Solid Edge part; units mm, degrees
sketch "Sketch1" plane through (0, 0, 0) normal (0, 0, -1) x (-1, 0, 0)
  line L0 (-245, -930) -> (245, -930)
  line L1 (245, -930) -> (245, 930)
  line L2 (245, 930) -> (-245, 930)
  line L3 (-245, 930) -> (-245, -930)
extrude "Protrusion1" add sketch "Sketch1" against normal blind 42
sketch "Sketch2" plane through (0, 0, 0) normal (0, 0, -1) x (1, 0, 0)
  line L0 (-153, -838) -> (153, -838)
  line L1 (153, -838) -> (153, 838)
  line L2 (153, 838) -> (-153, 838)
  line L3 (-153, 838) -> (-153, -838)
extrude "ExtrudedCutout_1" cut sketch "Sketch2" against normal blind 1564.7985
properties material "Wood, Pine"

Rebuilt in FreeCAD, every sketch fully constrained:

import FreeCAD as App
import Part
import Sketcher

V = App.Vector
Q = App.Units.Quantity


def add_polygon(sketch, points):
    """Adds a closed chain of lines whose ends are joined by coincident constraints."""
    first, n = sketch.GeometryCount, len(points)
    for a, b in zip(points, points[1:] + points[:1]):
        sketch.addGeometry(Part.LineSegment(App.Vector(*a, 0), App.Vector(*b, 0)), False)
    for i in range(n):
        sketch.addConstraint(Sketcher.Constraint("Coincident", first + i, 2, first + (i + 1) % n, 1))

doc = App.newDocument("Part")
body = doc.addObject("PartDesign::Body", "Body")

sketch1 = body.newObject("Sketcher::SketchObject", "Sketch")
sketch1.AttachmentSupport = (doc.getObject("XY_Plane"), [""])
sketch1.MapMode = "FlatFace"
add_polygon(sketch1, [(245, 930), (245, -930), (-245, -930), (-245, 930)])
sketch1.addConstraint(Sketcher.Constraint("Vertical", 0))
sketch1.addConstraint(Sketcher.Constraint("Horizontal", 1))
sketch1.addConstraint(Sketcher.Constraint("Vertical", 2))
sketch1.addConstraint(Sketcher.Constraint("Horizontal", 3))
sketch1.addConstraint(Sketcher.Constraint("Symmetric", 0, 2, 2, 2, -1, 1))
sketch1.addConstraint(Sketcher.Constraint("DistanceX", 1, 2, 1, 1, Q("490 mm")))
sketch1.addConstraint(Sketcher.Constraint("DistanceY", 0, 2, 0, 1, Q("1860 mm")))
pad1 = body.newObject("PartDesign::Pad", "Pad")
pad1.Profile = sketch1
pad1.Length = 42

sketch2 = body.newObject("Sketcher::SketchObject", "Sketch001")
sketch2.AttachmentSupport = (doc.getObject("XY_Plane"), [""])
sketch2.MapMode = "FlatFace"
add_polygon(sketch2, [(-153, -838), (-153, 838), (153, 838), (153, -838)])
sketch2.addConstraint(Sketcher.Constraint("Vertical", 0))
sketch2.addConstraint(Sketcher.Constraint("Horizontal", 1))
sketch2.addConstraint(Sketcher.Constraint("Vertical", 2))
sketch2.addConstraint(Sketcher.Constraint("Horizontal", 3))
sketch2.addConstraint(Sketcher.Constraint("Symmetric", 0, 2, 2, 2, -1, 1))
sketch2.addConstraint(Sketcher.Constraint("DistanceX", 1, 1, 1, 2, Q("306 mm")))
sketch2.addConstraint(Sketcher.Constraint("DistanceY", 0, 1, 0, 2, Q("1676 mm")))
pocket1 = body.newObject("PartDesign::Pocket", "Pocket")
pocket1.Profile = sketch2
pocket1.Length = 1564.7985
pocket1.Reversed = True

doc.recompute()
